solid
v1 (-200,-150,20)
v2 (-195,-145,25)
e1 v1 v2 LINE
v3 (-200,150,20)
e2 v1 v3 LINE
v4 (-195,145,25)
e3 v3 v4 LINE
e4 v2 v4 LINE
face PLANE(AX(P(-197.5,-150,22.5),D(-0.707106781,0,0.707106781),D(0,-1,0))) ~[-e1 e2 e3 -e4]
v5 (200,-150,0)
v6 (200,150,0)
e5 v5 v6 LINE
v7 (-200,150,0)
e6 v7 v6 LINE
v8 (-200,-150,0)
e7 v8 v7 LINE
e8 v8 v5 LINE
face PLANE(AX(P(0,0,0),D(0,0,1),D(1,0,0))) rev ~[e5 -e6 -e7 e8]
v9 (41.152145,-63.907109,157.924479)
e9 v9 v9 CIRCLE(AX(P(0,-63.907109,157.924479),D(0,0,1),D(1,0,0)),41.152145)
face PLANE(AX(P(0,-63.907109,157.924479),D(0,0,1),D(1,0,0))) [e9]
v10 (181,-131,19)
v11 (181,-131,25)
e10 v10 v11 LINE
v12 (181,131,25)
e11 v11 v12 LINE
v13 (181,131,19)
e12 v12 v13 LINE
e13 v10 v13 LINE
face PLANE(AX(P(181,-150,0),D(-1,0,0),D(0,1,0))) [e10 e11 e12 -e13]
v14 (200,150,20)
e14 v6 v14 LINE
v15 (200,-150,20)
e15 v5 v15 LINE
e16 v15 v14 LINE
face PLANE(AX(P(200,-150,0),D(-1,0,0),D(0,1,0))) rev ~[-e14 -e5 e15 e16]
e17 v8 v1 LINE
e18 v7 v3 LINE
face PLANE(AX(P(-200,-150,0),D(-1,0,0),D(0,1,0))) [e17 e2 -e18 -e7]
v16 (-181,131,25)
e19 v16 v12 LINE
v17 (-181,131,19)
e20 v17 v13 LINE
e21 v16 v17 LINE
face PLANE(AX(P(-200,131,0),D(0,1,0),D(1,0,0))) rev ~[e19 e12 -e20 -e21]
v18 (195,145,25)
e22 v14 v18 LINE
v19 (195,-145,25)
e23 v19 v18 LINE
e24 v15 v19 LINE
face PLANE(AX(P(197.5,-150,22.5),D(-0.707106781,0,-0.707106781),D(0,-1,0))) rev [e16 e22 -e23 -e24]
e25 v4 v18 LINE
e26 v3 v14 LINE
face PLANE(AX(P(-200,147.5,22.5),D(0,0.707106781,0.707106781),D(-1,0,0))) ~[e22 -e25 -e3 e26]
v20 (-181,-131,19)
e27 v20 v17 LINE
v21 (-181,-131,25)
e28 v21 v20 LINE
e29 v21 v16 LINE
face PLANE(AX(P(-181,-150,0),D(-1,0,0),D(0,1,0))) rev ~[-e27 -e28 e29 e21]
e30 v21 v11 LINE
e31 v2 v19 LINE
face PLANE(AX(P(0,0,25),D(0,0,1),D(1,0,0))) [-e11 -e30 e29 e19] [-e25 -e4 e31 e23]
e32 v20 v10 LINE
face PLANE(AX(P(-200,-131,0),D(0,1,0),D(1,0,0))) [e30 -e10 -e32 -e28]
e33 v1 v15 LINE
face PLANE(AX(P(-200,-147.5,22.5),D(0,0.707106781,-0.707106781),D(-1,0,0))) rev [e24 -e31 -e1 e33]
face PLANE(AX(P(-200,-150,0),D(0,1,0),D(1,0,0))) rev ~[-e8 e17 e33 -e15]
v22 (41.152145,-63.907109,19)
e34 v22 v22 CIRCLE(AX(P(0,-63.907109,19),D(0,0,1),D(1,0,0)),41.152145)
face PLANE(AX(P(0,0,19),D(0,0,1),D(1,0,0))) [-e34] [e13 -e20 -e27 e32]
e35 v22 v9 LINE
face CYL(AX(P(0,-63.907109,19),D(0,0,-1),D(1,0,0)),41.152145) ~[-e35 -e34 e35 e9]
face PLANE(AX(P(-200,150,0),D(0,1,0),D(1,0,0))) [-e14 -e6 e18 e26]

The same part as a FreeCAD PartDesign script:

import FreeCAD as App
import Part
import Sketcher

V = App.Vector


def edges_at(feature, points):
    """Names of the edges that pass closest to the given points."""
    edges = feature.Shape.Edges
    near = lambda p: min(range(len(edges)), key=lambda i: edges[i].distToShape(Part.Vertex(*p))[0])
    return sorted({f"Edge{near(p) + 1}" for p in points})


def faces_at(feature, points):
    """Names of the faces that lie closest to the given points."""
    faces = feature.Shape.Faces
    near = lambda p: min(range(len(faces)), key=lambda i: faces[i].distToShape(Part.Vertex(*p))[0])
    return sorted({f"Face{near(p) + 1}" for p in points})


def add_polygon(sketch, points):
    """Adds a closed chain of lines whose ends are joined by coincident constraints."""
    first, n = sketch.GeometryCount, len(points)
    for a, b in zip(points, points[1:] + points[:1]):
        sketch.addGeometry(Part.LineSegment(App.Vector(*a, 0), App.Vector(*b, 0)), False)
    for i in range(n):
        sketch.addConstraint(Sketcher.Constraint("Coincident", first + i, 2, first + (i + 1) % n, 1))

doc = App.newDocument("Part")
body = doc.addObject("PartDesign::Body", "Body")

sketch1 = body.newObject("Sketcher::SketchObject", "Sketch")
sketch1.AttachmentSupport = (doc.getObject("XY_Plane"), [""])
sketch1.MapMode = "FlatFace"
add_polygon(sketch1, [(-200, 150), (-200, -150), (200, -150), (200, 150)])
sketch1.addConstraint([
    Sketcher.Constraint("Vertical", 0),
    Sketcher.Constraint("Horizontal", 1),
    Sketcher.Constraint("Vertical", 2),
    Sketcher.Constraint("Horizontal", 3),
    Sketcher.Constraint("Symmetric", 0, 2, 2, 2, -1, 1),
    Sketcher.Constraint("DistanceX", 1, 1, 1, 2, 400.0),
    Sketcher.Constraint("DistanceY", 0, 2, 0, 1, 300.0),
])
pad1 = body.newObject("PartDesign::Pad", "Pad")
pad1.Profile = sketch1
pad1.Length = 25
doc.recompute()

thickness = body.newObject("PartDesign::Thickness", "Thickness")
thickness.Base = (pad1, faces_at(pad1, [(0, 0, 25)]))
thickness.Value = 19
thickness.Reversed = True
thickness.Join = "Arc"
doc.recompute()

chamfer = body.newObject("PartDesign::Chamfer", "Chamfer")
chamfer.Base = (thickness, edges_at(thickness, [
    (-200, 0, 25),
    (0, 150, 25),
    (200, 0, 25),
    (0, -150, 25),
]))
chamfer.Size = 5

sketch2 = body.newObject("Sketcher::SketchObject", "Sketch001")
sketch2.AttachmentSupport = (doc.getObject("XY_Plane"), [""])
sketch2.MapMode = "FlatFace"
sketch2.AttachmentOffset = App.Placement(V(0, 0, 19), App.Rotation())
sketch2.addGeometry(Part.Circle(V(0, -64, 0), V(0, 0, 1), 41), False)
sketch2.addConstraint([
    Sketcher.Constraint("PointOnObject", 0, 3, -2),
    Sketcher.Constraint("Diameter", 0, 82.30429),
    Sketcher.Constraint("DistanceY", 0, 3, -1, 1, 63.907109),
])
pad2 = body.newObject("PartDesign::Pad", "Pad001")
pad2.Profile = sketch2
pad2.Length = 138.924479

doc.recompute()
